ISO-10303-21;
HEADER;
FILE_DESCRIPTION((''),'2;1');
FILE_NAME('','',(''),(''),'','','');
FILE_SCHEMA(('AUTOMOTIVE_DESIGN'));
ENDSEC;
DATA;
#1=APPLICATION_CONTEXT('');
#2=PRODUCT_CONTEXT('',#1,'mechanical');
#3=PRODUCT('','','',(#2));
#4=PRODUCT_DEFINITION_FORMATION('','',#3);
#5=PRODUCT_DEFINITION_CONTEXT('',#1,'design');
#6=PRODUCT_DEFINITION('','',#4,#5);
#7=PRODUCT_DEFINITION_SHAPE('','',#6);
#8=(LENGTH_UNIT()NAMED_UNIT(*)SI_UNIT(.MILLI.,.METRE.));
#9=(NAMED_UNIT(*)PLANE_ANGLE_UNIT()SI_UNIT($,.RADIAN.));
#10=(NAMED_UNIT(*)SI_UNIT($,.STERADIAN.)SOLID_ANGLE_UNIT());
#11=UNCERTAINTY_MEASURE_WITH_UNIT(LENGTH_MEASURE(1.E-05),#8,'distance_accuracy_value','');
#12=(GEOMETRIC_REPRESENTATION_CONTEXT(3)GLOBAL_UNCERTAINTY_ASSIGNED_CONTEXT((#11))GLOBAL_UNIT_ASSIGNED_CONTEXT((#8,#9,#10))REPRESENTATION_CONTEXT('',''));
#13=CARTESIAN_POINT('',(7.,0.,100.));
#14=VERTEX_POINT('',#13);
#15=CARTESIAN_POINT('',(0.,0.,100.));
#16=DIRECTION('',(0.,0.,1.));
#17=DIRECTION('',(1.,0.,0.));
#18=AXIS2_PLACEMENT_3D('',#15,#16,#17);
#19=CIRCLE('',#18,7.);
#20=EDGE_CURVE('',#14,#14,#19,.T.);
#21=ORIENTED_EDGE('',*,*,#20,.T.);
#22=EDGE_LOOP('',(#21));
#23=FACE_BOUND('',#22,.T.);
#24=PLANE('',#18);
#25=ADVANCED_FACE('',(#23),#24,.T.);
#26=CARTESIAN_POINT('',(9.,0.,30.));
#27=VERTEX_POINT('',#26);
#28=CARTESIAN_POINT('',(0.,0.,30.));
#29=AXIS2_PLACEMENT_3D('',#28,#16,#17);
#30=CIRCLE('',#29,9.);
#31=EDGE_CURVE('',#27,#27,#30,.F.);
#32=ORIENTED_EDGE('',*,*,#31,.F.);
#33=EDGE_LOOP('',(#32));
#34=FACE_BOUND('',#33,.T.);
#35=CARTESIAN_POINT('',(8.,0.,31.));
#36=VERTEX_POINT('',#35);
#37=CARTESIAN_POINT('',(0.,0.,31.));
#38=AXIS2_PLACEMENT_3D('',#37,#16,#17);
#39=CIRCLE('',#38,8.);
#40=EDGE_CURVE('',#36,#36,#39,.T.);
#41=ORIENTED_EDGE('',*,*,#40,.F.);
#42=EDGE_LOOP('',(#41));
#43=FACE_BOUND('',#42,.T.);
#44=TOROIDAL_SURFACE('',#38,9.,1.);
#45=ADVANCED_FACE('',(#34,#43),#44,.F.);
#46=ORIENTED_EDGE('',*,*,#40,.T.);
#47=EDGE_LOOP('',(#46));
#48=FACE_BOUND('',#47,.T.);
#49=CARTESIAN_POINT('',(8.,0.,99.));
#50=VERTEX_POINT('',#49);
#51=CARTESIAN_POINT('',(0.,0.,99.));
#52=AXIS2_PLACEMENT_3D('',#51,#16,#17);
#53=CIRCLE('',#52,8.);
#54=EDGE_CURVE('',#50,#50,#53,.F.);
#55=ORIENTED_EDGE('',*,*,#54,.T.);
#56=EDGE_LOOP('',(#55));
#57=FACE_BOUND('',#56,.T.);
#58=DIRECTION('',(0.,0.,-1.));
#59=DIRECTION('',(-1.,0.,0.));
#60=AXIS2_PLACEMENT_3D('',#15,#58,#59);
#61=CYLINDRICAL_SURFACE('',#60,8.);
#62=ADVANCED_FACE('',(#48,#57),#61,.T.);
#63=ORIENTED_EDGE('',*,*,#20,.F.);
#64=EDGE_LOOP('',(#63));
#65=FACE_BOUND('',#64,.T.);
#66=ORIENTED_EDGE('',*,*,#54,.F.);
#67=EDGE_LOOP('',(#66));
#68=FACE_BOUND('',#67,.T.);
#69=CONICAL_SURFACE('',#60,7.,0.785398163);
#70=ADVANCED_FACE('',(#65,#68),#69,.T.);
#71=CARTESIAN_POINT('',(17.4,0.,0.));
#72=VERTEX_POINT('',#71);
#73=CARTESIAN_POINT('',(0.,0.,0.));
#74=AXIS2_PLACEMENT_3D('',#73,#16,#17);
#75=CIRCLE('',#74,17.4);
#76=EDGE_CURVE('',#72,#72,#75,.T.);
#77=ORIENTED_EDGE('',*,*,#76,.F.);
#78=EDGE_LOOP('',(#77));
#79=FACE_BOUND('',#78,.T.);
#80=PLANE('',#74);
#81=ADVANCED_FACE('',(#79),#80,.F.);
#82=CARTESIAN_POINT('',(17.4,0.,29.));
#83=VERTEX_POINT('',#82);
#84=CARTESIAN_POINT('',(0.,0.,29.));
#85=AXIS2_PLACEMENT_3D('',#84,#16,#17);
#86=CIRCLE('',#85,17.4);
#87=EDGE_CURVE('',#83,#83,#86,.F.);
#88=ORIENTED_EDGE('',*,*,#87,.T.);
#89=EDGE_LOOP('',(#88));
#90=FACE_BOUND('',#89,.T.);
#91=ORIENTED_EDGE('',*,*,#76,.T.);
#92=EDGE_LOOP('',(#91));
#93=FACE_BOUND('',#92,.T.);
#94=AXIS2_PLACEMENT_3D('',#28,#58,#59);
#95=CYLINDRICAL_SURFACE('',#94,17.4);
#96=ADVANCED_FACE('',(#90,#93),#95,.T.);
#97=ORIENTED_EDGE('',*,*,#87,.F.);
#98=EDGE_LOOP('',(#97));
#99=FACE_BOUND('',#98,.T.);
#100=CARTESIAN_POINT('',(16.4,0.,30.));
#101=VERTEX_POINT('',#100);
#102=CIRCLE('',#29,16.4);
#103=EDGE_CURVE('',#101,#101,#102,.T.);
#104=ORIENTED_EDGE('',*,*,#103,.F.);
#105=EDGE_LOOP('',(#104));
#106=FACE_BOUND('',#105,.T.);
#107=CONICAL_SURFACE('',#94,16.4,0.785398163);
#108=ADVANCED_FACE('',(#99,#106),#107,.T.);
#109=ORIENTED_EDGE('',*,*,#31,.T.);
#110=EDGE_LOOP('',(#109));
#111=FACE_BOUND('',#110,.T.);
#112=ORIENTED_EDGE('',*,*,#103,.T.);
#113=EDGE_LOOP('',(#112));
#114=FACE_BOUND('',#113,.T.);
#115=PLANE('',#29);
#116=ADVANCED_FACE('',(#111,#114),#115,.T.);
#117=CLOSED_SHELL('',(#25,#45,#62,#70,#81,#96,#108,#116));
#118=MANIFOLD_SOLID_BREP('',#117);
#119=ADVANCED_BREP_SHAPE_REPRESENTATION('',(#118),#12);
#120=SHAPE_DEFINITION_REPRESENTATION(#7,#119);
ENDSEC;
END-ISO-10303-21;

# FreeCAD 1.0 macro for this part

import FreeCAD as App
import Part
import Sketcher
from FreeCAD import Vector


def edges_at(feature, points):
    """Names of the edges that pass closest to the given points."""
    edges = feature.Shape.Edges
    near = lambda p: min(range(len(edges)), key=lambda i: edges[i].distToShape(Part.Vertex(*p))[0])
    return sorted({f"Edge{near(p) + 1}" for p in points})

doc = App.newDocument("Part")
params = doc.addObject("Spreadsheet::Sheet", "Params")
for row, (alias, value) in enumerate([
    ("sketch1_diameter", "34.8 mm"),
    ("pad1_length", "30 mm"),
    ("sketch2_diameter", "16 mm"),
    ("pad2_length", "70 mm"),
    ("chamfer_size", "1 mm"),
    ("fillet_radius", "1 mm"),
], start=1):
    params.set(f"A{row}", alias)
    params.set(f"B{row}", "=" + value)
    params.setAlias(f"B{row}", alias)

body = doc.addObject("PartDesign::Body", "Body")

sketch1 = doc.addObject("Sketcher::SketchObject", "Sketch")
body.addObject(sketch1)
sketch1.AttachmentSupport = (doc.XY_Plane, [""])
sketch1.MapMode = "FlatFace"
sketch1.addGeometry(Part.Circle(Vector(0, 0, 0), Vector(0, 0, 1), 17), False)
sketch1.addConstraint([
    Sketcher.Constraint("Coincident", 0, 3, -1, 1),
    Sketcher.Constraint("Diameter", 0, 34.8),
])
sketch1.setExpression("Constraints[1]", "Params.sketch1_diameter")
pad1 = doc.addObject("PartDesign::Pad", "Pad")
body.addObject(pad1)
pad1.Profile = sketch1
pad1.setExpression("Length", "Params.pad1_length")

sketch2 = doc.addObject("Sketcher::SketchObject", "Sketch001")
body.addObject(sketch2)
sketch2.AttachmentSupport = (doc.XY_Plane, [""])
sketch2.MapMode = "FlatFace"
sketch2.AttachmentOffset = App.Placement(Vector(0, 0, 30), App.Rotation())
sketch2.addGeometry(Part.Circle(Vector(0, 0, 0), Vector(0, 0, 1), 8), False)
sketch2.addConstraint([
    Sketcher.Constraint("Coincident", 0, 3, -1, 1),
    Sketcher.Constraint("Diameter", 0, 16.0),
])
sketch2.setExpression("Constraints[1]", "Params.sketch2_diameter")
pad2 = doc.addObject("PartDesign::Pad", "Pad001")
body.addObject(pad2)
pad2.Profile = sketch2
pad2.setExpression("Length", "Params.pad2_length")
doc.recompute()

chamfer = doc.addObject("PartDesign::Chamfer", "Chamfer")
body.addObject(chamfer)
chamfer.Base = (pad2, edges_at(pad2, [(-17.4, 0, 30), (-8, 0, 100)]))
chamfer.setExpression("Size", "Params.chamfer_size")
doc.recompute()

fillet = doc.addObject("PartDesign::Fillet", "Fillet")
body.addObject(fillet)
fillet.Base = (chamfer, edges_at(chamfer, [(-8, 0, 30)]))
fillet.setExpression("Radius", "Params.fillet_radius")

doc.recompute()
